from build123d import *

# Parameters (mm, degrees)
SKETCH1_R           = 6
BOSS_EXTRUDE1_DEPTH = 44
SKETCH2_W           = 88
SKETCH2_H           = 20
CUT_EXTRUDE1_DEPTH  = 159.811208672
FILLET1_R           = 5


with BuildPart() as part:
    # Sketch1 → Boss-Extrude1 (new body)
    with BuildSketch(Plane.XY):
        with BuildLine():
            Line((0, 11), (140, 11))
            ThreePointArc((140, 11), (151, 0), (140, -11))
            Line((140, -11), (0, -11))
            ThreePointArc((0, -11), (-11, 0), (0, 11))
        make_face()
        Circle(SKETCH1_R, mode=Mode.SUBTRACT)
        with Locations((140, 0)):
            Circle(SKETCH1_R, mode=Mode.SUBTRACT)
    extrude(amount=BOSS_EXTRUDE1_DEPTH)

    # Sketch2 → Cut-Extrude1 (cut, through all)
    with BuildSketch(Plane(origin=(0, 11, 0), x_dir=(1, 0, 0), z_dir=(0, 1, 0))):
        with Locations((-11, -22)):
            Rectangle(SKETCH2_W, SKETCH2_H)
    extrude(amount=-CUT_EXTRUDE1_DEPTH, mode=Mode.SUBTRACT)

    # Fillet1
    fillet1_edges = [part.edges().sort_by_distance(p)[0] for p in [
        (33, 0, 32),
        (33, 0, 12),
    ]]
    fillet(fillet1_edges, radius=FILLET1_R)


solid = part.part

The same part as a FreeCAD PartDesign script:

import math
import FreeCAD as App
import Part
import Sketcher


def edges_at(feature, points):
    """Names of the edges that pass closest to the given points."""
    edges = feature.Shape.Edges
    near = lambda p: min(range(len(edges)), key=lambda i: edges[i].distToShape(Part.Vertex(*p))[0])
    return sorted({f"Edge{near(p) + 1}" for p in points})

doc = App.newDocument("Part")
params = doc.addObject("Spreadsheet::Sheet", "Params")
for row, (alias, value) in enumerate([
    ("sketch1_diameter", "12 mm"),
    ("sketch1_radius", "11 mm"),
    ("sketch1_width", "140 mm"),
    ("pad1_length", "44 mm"),
    ("sketch2_width", "88 mm"),
    ("sketch2_height", "20 mm"),
    ("fillet_radius", "5 mm"),
], start=1):
    params.set(f"A{row}", alias)
    params.set(f"B{row}", "=" + value)
    params.setAlias(f"B{row}", alias)

body = doc.addObject("PartDesign::Body", "Body")

# Sketch on XY plane
sketch1 = body.newObject("Sketcher::SketchObject", "Sketch")
sketch1.AttachmentSupport = (doc.getObject("XY_Plane"), [""])
sketch1.MapMode = "FlatFace"
sketch1.addGeometry(Part.LineSegment(App.Vector(140, 11, 0), App.Vector(0, 11, 0)), False)
sketch1.addGeometry(Part.ArcOfCircle(Part.Circle(App.Vector(0, 0, 0), App.Vector(0, 0, 1), 11), math.radians(90), math.radians(270)), False)
sketch1.addGeometry(Part.LineSegment(App.Vector(0, -11, 0), App.Vector(140, -11, 0)), False)
sketch1.addGeometry(Part.ArcOfCircle(Part.Circle(App.Vector(140, 0, 0), App.Vector(0, 0, 1), 11), math.radians(-90), math.radians(90)), False)
sketch1.addGeometry(Part.Circle(App.Vector(140, 0, 0), App.Vector(0, 0, 1), 6), False)
sketch1.addGeometry(Part.Circle(App.Vector(0, 0, 0), App.Vector(0, 0, 1), 6), False)
sketch1.addConstraint(Sketcher.Constraint("Tangent", 0, 2, 1, 1))
sketch1.addConstraint(Sketcher.Constraint("Tangent", 1, 2, 2, 1))
sketch1.addConstraint(Sketcher.Constraint("Tangent", 2, 2, 3, 1))
sketch1.addConstraint(Sketcher.Constraint("Tangent", 3, 2, 0, 1))
sketch1.addConstraint(Sketcher.Constraint("Horizontal", 0))
sketch1.addConstraint(Sketcher.Constraint("Horizontal", 2))
sketch1.addConstraint(Sketcher.Constraint("Coincident", 1, 3, -1, 1))
sketch1.addConstraint(Sketcher.Constraint("Coincident", 5, 3, -1, 1))
sketch1.addConstraint(Sketcher.Constraint("Coincident", 4, 3, 3, 3))
sketch1.addConstraint(Sketcher.Constraint("Equal", 4, 5))
sketch1.addConstraint(Sketcher.Constraint("Diameter", 4, 12.0))
sketch1.addConstraint(Sketcher.Constraint("Radius", 1, 11.0))
sketch1.addConstraint(Sketcher.Constraint("DistanceX", 0, 2, 0, 1, 140.0))
sketch1.setExpression("Constraints[10]", "Params.sketch1_diameter")
sketch1.setExpression("Constraints[11]", "Params.sketch1_radius")
sketch1.setExpression("Constraints[12]", "Params.sketch1_width")
pad1 = body.newObject("PartDesign::Pad", "Pad")
pad1.Profile = sketch1
pad1.setExpression("Length", "Params.pad1_length")

# Sketch on XZ plane
sketch2 = body.newObject("Sketcher::SketchObject", "Sketch001")
sketch2.AttachmentSupport = (doc.getObject("XZ_Plane"), [""])
sketch2.MapMode = "FlatFace"
sketch2.AttachmentOffset = App.Placement(App.Vector(0, 0, -11), App.Rotation())
sketch2.addGeometry(Part.LineSegment(App.Vector(-55, 12, 0), App.Vector(-55, 32, 0)), False)
sketch2.addGeometry(Part.LineSegment(App.Vector(-55, 32, 0), App.Vector(33, 32, 0)), False)
sketch2.addGeometry(Part.LineSegment(App.Vector(33, 32, 0), App.Vector(33, 12, 0)), False)
sketch2.addGeometry(Part.LineSegment(App.Vector(33, 12, 0), App.Vector(-55, 12, 0)), False)
sketch2.addConstraint(Sketcher.Constraint("Coincident", 0, 2, 1, 1))
sketch2.addConstraint(Sketcher.Constraint("Coincident", 1, 2, 2, 1))
sketch2.addConstraint(Sketcher.Constraint("Coincident", 2, 2, 3, 1))
sketch2.addConstraint(Sketcher.Constraint("Coincident", 3, 2, 0, 1))
sketch2.addConstraint(Sketcher.Constraint("Vertical", 0))
sketch2.addConstraint(Sketcher.Constraint("Horizontal", 1))
sketch2.addConstraint(Sketcher.Constraint("Vertical", 2))
sketch2.addConstraint(Sketcher.Constraint("Horizontal", 3))
sketch2.addConstraint(Sketcher.Constraint("DistanceX", 1, 1, 1, 2, 88.0))
sketch2.addConstraint(Sketcher.Constraint("DistanceY", 0, 1, 0, 2, 20.0))
sketch2.addConstraint(Sketcher.Constraint("DistanceX", 0, 2, -1, 1, 55.0))
sketch2.addConstraint(Sketcher.Constraint("DistanceY", -1, 1, 0, 2, 32.0))
sketch2.setExpression("Constraints[8]", "Params.sketch2_width")
sketch2.setExpression("Constraints[9]", "Params.sketch2_height")
pocket1 = body.newObject("PartDesign::Pocket", "Pocket")
pocket1.Profile = sketch2
pocket1.Type = "ThroughAll"
pocket1.Reversed = True
doc.recompute()

fillet = body.newObject("PartDesign::Fillet", "Fillet")
fillet.Base = (pocket1, edges_at(pocket1, [(33, 0, 32), (33, 0, 12)]))
fillet.setExpression("Radius", "Params.fillet_radius")

doc.recompute()
